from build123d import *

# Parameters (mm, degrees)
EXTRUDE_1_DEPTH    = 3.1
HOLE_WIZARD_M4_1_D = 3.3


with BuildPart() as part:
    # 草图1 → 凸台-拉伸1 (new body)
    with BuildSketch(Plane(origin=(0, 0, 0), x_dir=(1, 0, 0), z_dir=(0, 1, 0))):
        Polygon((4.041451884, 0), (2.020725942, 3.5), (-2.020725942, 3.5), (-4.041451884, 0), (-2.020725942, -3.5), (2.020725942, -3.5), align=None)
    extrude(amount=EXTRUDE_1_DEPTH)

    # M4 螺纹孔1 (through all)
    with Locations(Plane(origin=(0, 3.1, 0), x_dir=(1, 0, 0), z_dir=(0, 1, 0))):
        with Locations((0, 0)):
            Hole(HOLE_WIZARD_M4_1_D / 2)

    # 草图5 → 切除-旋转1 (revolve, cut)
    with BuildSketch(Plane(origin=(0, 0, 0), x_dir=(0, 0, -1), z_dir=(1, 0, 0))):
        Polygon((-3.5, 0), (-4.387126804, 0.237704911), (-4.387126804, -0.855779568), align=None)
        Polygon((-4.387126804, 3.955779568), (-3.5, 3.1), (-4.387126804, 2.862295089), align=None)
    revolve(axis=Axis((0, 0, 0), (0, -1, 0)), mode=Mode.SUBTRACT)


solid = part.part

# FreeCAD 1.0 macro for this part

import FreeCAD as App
import Part
import Sketcher

V = App.Vector
Q = App.Units.Quantity

doc = App.newDocument("Part")
body = doc.addObject("PartDesign::Body", "Body")

# Sketch on XZ plane
sketch1 = body.newObject("Sketcher::SketchObject", "Sketch")
sketch1.AttachmentSupport = (doc.getObject("XZ_Plane"), [""])
sketch1.MapMode = "FlatFace"
sketch1.addGeometry([
    Part.LineSegment(V(4.041452, 0, 0), V(2.020726, -3.5, 0)),  # 0
    Part.LineSegment(V(2.020726, -3.5, 0), V(-2.020726, -3.5, 0)),  # 1
    Part.LineSegment(V(-2.020726, -3.5, 0), V(-4.041452, 0, 0)),  # 2
    Part.LineSegment(V(-4.041452, 0, 0), V(-2.020726, 3.5, 0)),  # 3
    Part.LineSegment(V(-2.020726, 3.5, 0), V(2.020726, 3.5, 0)),  # 4
    Part.LineSegment(V(2.020726, 3.5, 0), V(4.041452, 0, 0)),  # 5
], False)
sketch1.addConstraint([
    Sketcher.Constraint("Coincident", 0, 2, 1, 1),
    Sketcher.Constraint("Coincident", 1, 2, 2, 1),
    Sketcher.Constraint("Coincident", 2, 2, 3, 1),
    Sketcher.Constraint("Coincident", 3, 2, 4, 1),
    Sketcher.Constraint("Coincident", 4, 2, 5, 1),
    Sketcher.Constraint("Coincident", 5, 2, 0, 1),
    Sketcher.Constraint("Horizontal", 1),
    Sketcher.Constraint("Horizontal", 4),
    Sketcher.Constraint("Symmetric", 0, 2, 3, 2, -1, 1),
    Sketcher.Constraint("Symmetric", 2, 2, 5, 2, -1, 1),
    Sketcher.Constraint("PointOnObject", 2, 2, -1),
    Sketcher.Constraint("Parallel", 2, 5),
    Sketcher.Constraint("Vertical", 1, 2, 3, 2),
    Sketcher.Constraint("Angle", 0, Q("-120 deg")),
    Sketcher.Constraint("DistanceY", 1, 2, 3, 2, Q("7 mm")),
    Sketcher.Constraint("DistanceX", 1, 2, 1, 1, Q("4.041452 mm")),
])
pad1 = body.newObject("PartDesign::Pad", "Pad")
pad1.Profile = sketch1
pad1.Length = 3.1
pad1.Reversed = True

# Sketch on XZ plane
sketch2 = body.newObject("Sketcher::SketchObject", "Sketch001")
sketch2.AttachmentSupport = (doc.getObject("XZ_Plane"), [""])
sketch2.MapMode = "FlatFace"
sketch2.AttachmentOffset = App.Placement(V(0, 0, -3.1), App.Rotation())
sketch2.addGeometry(Part.Circle(V(0, 0, 0), V(0, 0, 1), 1.65), False)
sketch2.addConstraint([
    Sketcher.Constraint("Coincident", 0, 3, -1, 1),
    Sketcher.Constraint("Diameter", 0, Q("3.3 mm")),
])
doc.recompute()
hole = body.newObject("PartDesign::Hole", "Hole")
hole.Profile = sketch2
hole.ThreadType = "None"
hole.Diameter = 3.3
hole.DepthType = "ThroughAll"
hole.Reversed = True

# Sketch on YZ plane
sketch3 = body.newObject("Sketcher::SketchObject", "Sketch002")
sketch3.AttachmentSupport = (doc.getObject("YZ_Plane"), [""])
sketch3.MapMode = "FlatFace"
sketch3.addGeometry([
    Part.LineSegment(V(0, 3.5, 0), V(0.237705, 4.387127, 0)),  # 0
    Part.LineSegment(V(0.237705, 4.387127, 0), V(-0.85578, 4.387127, 0)),  # 1
    Part.LineSegment(V(-0.85578, 4.387127, 0), V(0, 3.5, 0)),  # 2
    Part.LineSegment(V(3.1, 3.5, 0), V(3.95578, 4.387127, 0)),  # 3
    Part.LineSegment(V(3.95578, 4.387127, 0), V(2.862295, 4.387127, 0)),  # 4
    Part.LineSegment(V(2.862295, 4.387127, 0), V(3.1, 3.5, 0)),  # 5
], False)
sketch3.addConstraint([
    Sketcher.Constraint("Coincident", 0, 2, 1, 1),
    Sketcher.Constraint("Coincident", 1, 2, 2, 1),
    Sketcher.Constraint("Coincident", 2, 2, 0, 1),
    Sketcher.Constraint("Coincident", 3, 2, 4, 1),
    Sketcher.Constraint("Coincident", 4, 2, 5, 1),
    Sketcher.Constraint("Coincident", 5, 2, 3, 1),
    Sketcher.Constraint("Horizontal", 1),
    Sketcher.Constraint("Horizontal", 4),
    Sketcher.Constraint("PointOnObject", 2, 2, -2),
    Sketcher.Constraint("Horizontal", 1, 2, 3, 2),
    Sketcher.Constraint("Horizontal", 2, 2, 5, 2),
    Sketcher.Constraint("Equal", 1, 4),
    Sketcher.Constraint("Equal", 2, 3),
    Sketcher.Constraint("Angle", 0, Q("75 deg")),
    Sketcher.Constraint("DistanceY", -1, 1, 2, 2, Q("3.5 mm")),
    Sketcher.Constraint("DistanceX", -1, 1, 5, 2, Q("3.1 mm")),
    Sketcher.Constraint("Distance", 0, Q("0.918421 mm")),
    Sketcher.Constraint("Distance", 2, Q("1.23262 mm")),
])
groove = body.newObject("PartDesign::Groove", "Groove")
groove.Profile = sketch3
groove.ReferenceAxis = (sketch3, ["H_Axis"])
groove.Angle = 360

doc.recompute()
